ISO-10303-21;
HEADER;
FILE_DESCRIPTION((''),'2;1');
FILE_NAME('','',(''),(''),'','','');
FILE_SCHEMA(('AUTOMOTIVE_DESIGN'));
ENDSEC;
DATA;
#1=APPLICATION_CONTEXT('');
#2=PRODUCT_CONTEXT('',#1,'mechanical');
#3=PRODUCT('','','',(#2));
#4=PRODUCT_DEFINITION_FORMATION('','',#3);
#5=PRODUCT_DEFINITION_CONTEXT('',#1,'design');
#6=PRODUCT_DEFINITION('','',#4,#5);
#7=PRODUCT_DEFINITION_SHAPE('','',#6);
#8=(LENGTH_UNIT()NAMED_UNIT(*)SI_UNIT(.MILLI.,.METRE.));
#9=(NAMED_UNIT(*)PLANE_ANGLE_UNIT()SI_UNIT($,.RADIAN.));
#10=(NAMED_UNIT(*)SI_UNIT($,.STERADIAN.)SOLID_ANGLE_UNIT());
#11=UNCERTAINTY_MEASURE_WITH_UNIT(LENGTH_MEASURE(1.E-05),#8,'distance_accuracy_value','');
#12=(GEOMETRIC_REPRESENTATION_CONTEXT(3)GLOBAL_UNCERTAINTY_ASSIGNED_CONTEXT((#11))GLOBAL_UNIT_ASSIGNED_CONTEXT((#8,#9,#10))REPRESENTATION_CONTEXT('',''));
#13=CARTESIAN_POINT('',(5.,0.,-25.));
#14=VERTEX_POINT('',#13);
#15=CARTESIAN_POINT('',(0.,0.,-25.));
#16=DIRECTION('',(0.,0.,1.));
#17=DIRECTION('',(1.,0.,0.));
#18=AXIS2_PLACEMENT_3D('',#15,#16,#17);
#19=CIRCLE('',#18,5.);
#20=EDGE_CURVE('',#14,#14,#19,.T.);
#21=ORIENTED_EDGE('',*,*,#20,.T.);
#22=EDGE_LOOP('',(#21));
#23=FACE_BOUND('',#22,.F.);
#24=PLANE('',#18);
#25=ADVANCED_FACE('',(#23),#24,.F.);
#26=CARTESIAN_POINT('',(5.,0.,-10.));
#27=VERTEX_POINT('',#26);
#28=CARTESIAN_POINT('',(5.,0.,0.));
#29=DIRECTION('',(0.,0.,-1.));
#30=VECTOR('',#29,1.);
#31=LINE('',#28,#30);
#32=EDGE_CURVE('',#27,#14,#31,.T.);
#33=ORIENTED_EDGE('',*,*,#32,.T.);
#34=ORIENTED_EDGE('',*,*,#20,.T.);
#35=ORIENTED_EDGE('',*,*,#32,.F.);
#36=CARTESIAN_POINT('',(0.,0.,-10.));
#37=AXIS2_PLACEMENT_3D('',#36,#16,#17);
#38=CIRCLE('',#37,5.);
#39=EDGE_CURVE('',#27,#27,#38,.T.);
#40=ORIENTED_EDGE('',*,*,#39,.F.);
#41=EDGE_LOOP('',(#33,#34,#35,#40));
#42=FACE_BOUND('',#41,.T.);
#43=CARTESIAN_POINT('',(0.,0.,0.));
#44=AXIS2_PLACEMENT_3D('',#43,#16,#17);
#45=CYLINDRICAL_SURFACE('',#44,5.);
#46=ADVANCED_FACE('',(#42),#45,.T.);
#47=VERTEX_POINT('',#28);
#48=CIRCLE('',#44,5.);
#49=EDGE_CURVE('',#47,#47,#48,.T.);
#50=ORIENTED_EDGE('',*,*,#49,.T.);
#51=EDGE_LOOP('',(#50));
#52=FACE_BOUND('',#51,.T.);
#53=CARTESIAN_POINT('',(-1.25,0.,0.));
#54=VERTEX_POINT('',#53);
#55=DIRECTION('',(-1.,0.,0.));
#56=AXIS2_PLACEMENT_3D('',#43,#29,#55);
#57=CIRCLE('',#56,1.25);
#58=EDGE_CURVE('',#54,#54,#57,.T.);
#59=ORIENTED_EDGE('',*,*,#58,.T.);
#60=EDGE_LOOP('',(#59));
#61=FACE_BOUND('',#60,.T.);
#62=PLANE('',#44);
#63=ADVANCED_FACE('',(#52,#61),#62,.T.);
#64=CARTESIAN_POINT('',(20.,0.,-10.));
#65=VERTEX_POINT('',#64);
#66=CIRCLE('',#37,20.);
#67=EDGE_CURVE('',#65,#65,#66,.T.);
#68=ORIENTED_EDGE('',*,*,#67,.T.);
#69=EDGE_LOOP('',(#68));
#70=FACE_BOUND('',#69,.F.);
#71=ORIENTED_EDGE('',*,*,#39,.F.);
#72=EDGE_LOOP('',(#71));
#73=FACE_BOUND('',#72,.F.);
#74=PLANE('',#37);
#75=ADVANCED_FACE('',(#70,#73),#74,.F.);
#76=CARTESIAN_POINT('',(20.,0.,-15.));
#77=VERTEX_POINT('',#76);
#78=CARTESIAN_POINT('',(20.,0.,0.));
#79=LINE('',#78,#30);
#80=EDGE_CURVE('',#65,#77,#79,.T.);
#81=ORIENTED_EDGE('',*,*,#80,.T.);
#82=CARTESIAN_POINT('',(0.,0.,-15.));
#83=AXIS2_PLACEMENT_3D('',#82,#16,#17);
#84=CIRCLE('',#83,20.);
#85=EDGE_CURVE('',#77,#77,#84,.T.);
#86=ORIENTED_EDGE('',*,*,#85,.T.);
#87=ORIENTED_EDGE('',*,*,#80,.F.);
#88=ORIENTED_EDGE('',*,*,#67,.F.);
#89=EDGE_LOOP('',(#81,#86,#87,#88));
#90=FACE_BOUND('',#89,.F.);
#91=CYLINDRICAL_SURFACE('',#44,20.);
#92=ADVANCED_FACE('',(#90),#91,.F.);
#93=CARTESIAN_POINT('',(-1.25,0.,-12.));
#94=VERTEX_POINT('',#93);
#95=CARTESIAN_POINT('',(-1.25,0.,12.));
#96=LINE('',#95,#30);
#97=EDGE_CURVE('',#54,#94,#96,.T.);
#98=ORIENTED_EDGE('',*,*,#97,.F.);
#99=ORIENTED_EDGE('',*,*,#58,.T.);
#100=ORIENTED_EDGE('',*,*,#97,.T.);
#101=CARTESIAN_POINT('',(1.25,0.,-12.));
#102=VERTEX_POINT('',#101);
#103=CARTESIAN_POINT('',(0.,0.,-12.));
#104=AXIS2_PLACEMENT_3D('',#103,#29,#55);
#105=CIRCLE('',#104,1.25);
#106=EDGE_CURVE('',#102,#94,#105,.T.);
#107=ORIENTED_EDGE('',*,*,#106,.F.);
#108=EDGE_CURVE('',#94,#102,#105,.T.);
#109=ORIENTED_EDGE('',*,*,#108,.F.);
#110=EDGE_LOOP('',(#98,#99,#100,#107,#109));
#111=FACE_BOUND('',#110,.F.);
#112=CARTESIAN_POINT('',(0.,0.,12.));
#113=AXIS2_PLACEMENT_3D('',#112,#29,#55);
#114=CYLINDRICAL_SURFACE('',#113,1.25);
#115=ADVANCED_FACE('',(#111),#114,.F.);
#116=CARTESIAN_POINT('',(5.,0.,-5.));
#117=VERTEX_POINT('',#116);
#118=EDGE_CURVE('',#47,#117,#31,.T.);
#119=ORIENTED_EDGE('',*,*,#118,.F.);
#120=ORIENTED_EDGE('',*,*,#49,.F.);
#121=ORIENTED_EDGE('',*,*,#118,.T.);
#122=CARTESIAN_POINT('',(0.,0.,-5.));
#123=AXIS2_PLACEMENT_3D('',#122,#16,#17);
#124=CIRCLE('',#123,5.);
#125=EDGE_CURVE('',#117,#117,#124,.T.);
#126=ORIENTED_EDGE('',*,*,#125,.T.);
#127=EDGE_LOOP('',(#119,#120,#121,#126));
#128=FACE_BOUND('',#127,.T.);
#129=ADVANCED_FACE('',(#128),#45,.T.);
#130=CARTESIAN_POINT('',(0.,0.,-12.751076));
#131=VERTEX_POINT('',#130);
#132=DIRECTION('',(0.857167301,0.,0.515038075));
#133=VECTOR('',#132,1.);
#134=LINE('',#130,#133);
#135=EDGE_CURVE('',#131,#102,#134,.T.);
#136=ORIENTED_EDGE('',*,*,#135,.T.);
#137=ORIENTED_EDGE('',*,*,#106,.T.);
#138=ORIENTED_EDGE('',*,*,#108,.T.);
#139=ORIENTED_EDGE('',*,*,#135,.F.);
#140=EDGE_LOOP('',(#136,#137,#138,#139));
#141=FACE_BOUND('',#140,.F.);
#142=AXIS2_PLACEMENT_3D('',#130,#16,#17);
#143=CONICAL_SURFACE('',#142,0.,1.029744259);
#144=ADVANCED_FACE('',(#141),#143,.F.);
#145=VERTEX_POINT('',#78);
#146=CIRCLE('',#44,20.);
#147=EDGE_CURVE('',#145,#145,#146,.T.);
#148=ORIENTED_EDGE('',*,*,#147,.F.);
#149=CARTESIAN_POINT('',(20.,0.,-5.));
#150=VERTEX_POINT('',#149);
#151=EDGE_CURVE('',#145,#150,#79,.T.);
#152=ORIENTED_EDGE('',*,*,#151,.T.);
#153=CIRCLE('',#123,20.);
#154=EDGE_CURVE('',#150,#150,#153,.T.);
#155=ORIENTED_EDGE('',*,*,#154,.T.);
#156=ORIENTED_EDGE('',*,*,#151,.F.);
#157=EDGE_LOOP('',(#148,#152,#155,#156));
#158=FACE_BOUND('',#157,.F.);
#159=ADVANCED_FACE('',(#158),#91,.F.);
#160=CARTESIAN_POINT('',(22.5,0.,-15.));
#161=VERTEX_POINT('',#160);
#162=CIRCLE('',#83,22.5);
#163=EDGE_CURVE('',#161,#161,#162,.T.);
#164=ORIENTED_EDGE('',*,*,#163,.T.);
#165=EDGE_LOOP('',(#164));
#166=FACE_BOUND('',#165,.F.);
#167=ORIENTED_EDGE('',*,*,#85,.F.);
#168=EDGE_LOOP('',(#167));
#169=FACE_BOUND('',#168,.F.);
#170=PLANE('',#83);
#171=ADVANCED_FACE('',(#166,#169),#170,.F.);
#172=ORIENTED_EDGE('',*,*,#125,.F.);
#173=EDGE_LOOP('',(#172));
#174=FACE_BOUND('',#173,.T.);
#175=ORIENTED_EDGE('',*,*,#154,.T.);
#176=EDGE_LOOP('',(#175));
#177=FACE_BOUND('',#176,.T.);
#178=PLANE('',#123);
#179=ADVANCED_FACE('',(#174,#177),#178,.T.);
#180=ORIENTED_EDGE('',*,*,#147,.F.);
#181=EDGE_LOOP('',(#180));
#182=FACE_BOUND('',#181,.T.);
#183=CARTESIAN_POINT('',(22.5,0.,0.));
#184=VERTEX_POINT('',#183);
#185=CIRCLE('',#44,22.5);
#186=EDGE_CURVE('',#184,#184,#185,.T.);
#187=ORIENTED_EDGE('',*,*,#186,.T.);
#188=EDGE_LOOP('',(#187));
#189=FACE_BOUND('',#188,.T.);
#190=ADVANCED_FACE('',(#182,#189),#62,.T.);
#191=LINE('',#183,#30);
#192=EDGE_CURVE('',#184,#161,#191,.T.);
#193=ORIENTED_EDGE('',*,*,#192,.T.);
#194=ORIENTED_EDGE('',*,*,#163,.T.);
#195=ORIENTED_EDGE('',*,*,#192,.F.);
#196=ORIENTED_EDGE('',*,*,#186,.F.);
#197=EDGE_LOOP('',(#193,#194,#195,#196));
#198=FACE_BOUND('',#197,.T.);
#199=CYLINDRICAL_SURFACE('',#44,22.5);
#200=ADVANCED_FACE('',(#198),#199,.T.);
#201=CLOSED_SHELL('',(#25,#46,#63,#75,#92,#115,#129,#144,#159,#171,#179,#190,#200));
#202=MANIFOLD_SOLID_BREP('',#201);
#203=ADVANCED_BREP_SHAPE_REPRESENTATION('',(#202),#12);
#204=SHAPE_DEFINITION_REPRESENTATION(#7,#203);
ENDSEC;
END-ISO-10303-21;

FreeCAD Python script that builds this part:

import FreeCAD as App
import Part
import Sketcher
from FreeCAD import Vector

doc = App.newDocument("Part")
body = doc.addObject("PartDesign::Body", "Body")

sketch1 = doc.addObject("Sketcher::SketchObject", "Sketch")
body.addObject(sketch1)
sketch1.AttachmentSupport = (doc.XY_Plane, [""])
sketch1.MapMode = "FlatFace"
sketch1.addGeometry(Part.Circle(Vector(0, 0, 0), Vector(0, 0, 1), 22), False)
sketch1.addGeometry(Part.Circle(Vector(0, 0, 0), Vector(0, 0, 1), 20), False)
sketch1.addConstraint(Sketcher.Constraint("Coincident", 0, 3, -1, 1))
sketch1.addConstraint(Sketcher.Constraint("Coincident", 1, 3, -1, 1))
sketch1.addConstraint(Sketcher.Constraint("Diameter", 0, 45.0))
sketch1.addConstraint(Sketcher.Constraint("Diameter", 1, 40.0))
pad1 = doc.addObject("PartDesign::Pad", "Pad")
body.addObject(pad1)
pad1.Profile = sketch1
pad1.Length = 15
pad1.Reversed = True

sketch2 = doc.addObject("Sketcher::SketchObject", "Sketch001")
body.addObject(sketch2)
sketch2.AttachmentSupport = (doc.XY_Plane, [""])
sketch2.MapMode = "FlatFace"
sketch2.addGeometry(Part.Circle(Vector(0, 0, 0), Vector(0, 0, 1), 20), False)
sketch2.addGeometry(Part.Circle(Vector(0, 0, 0), Vector(0, 0, 1), 5), False)
sketch2.addConstraint(Sketcher.Constraint("Coincident", 0, 3, -1, 1))
sketch2.addConstraint(Sketcher.Constraint("Coincident", 1, 3, -1, 1))
sketch2.addConstraint(Sketcher.Constraint("Diameter", 0, 40.0))
sketch2.addConstraint(Sketcher.Constraint("Diameter", 1, 10.0))
pad2 = doc.addObject("PartDesign::Pad", "Pad001")
body.addObject(pad2)
pad2.Profile = sketch2
pad2.Length = 10
pad2.Reversed = True

sketch3 = doc.addObject("Sketcher::SketchObject", "Sketch002")
body.addObject(sketch3)
sketch3.AttachmentSupport = (doc.XY_Plane, [""])
sketch3.MapMode = "FlatFace"
sketch3.addGeometry(Part.Circle(Vector(0, 0, 0), Vector(0, 0, 1), 20), False)
sketch3.addGeometry(Part.Circle(Vector(0, 0, 0), Vector(0, 0, 1), 5), False)
sketch3.addConstraint(Sketcher.Constraint("Coincident", 0, 3, -1, 1))
sketch3.addConstraint(Sketcher.Constraint("Coincident", 1, 3, -1, 1))
sketch3.addConstraint(Sketcher.Constraint("Diameter", 0, 40.0))
sketch3.addConstraint(Sketcher.Constraint("Diameter", 1, 10.0))
pocket1 = doc.addObject("PartDesign::Pocket", "Pocket")
body.addObject(pocket1)
pocket1.Profile = sketch3
pocket1.Length = 5

sketch4 = doc.addObject("Sketcher::SketchObject", "Sketch003")
body.addObject(sketch4)
sketch4.AttachmentSupport = (doc.XY_Plane, [""])
sketch4.MapMode = "FlatFace"
sketch4.addGeometry(Part.Circle(Vector(0, 0, 0), Vector(0, 0, 1), 5), False)
sketch4.addConstraint(Sketcher.Constraint("Coincident", 0, 3, -1, 1))
sketch4.addConstraint(Sketcher.Constraint("Diameter", 0, 10.0))
pad3 = doc.addObject("PartDesign::Pad", "Pad002")
body.addObject(pad3)
pad3.Profile = sketch4
pad3.Length = 25
pad3.Reversed = True

sketch5 = doc.addObject("Sketcher::SketchObject", "Sketch004")
body.addObject(sketch5)
sketch5.AttachmentSupport = (doc.XY_Plane, [""])
sketch5.MapMode = "FlatFace"
sketch5.addGeometry(Part.Circle(Vector(0, 0, 0), Vector(0, 0, 1), 1.2), False)
sketch5.addConstraint(Sketcher.Constraint("Coincident", 0, 3, -1, 1))
sketch5.addConstraint(Sketcher.Constraint("Diameter", 0, 2.5))
doc.recompute()
hole = doc.addObject("PartDesign::Hole", "Hole")
body.addObject(hole)
hole.Profile = sketch5
hole.ThreadType = "None"
hole.Diameter = 2.5
hole.DepthType = "Dimension"
hole.Depth = 12
hole.DrillPoint = "Angled"
hole.DrillPointAngle = 118

doc.recompute()
